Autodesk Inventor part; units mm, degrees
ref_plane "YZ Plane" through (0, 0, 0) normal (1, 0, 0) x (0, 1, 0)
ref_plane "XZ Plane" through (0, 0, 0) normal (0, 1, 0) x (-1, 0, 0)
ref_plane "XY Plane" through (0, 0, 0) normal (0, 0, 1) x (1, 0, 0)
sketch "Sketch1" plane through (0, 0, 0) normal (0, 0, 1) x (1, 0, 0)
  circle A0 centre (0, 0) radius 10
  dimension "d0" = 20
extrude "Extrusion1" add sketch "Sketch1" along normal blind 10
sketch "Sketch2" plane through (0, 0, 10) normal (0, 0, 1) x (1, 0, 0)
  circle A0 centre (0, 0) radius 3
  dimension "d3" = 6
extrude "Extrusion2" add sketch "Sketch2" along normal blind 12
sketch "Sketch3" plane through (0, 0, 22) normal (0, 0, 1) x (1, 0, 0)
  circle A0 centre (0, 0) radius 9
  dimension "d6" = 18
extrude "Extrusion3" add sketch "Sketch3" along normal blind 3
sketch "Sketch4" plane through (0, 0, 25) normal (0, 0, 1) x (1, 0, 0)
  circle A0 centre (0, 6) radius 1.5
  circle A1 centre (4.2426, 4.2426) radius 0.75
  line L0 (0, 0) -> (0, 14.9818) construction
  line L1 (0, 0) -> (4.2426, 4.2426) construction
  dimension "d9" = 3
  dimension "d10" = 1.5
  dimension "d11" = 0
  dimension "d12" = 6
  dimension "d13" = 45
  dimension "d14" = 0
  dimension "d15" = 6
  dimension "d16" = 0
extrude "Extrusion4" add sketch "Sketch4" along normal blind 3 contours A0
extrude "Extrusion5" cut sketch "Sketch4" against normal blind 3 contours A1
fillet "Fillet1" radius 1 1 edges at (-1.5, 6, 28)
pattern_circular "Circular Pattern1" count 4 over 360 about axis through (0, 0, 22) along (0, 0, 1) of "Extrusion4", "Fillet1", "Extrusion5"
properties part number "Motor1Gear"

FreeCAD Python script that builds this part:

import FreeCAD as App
import Part
import Sketcher
from FreeCAD import Vector
Q = App.Units.Quantity


def edges_at(feature, points):
    """Names of the edges that pass closest to the given points."""
    edges = feature.Shape.Edges
    near = lambda p: min(range(len(edges)), key=lambda i: edges[i].distToShape(Part.Vertex(*p))[0])
    return sorted({f"Edge{near(p) + 1}" for p in points})

doc = App.newDocument("Part")
params = doc.addObject("Spreadsheet::Sheet", "Params")
for row, (alias, value) in enumerate([
    ("sketch1_diameter", "20 mm"),
    ("pad1_length", "10 mm"),
    ("sketch2_diameter", "6 mm"),
    ("pad2_length", "12 mm"),
    ("sketch3_diameter", "18 mm"),
    ("pad3_length", "3 mm"),
    ("sketch4_diameter", "3 mm"),
    ("pad4_length", "3 mm"),
    ("sketch5_diameter", "1.5 mm"),
    ("pocket1_length", "3 mm"),
    ("fillet_radius", "1 mm"),
], start=1):
    params.set(f"A{row}", alias)
    params.set(f"B{row}", "=" + value)
    params.setAlias(f"B{row}", alias)

body = doc.addObject("PartDesign::Body", "Body")

# Sketch on XY plane
sketch1 = doc.addObject("Sketcher::SketchObject", "Sketch")
body.addObject(sketch1)
sketch1.AttachmentSupport = (doc.XY_Plane, [""])
sketch1.MapMode = "FlatFace"
sketch1.addGeometry(Part.Circle(Vector(0, 0, 0), Vector(0, 0, 1), 10), False)
sketch1.addConstraint([
    Sketcher.Constraint("Coincident", 0, 3, -1, 1),
    Sketcher.Constraint("Diameter", 0, Q("20 mm")),
])
sketch1.setExpression("Constraints[1]", "Params.sketch1_diameter")
pad1 = doc.addObject("PartDesign::Pad", "Pad")
body.addObject(pad1)
pad1.Profile = sketch1
pad1.setExpression("Length", "Params.pad1_length")

# Sketch on XY plane
sketch2 = doc.addObject("Sketcher::SketchObject", "Sketch001")
body.addObject(sketch2)
sketch2.AttachmentSupport = (doc.XY_Plane, [""])
sketch2.MapMode = "FlatFace"
sketch2.AttachmentOffset = App.Placement(Vector(0, 0, 10), App.Rotation())
sketch2.addGeometry(Part.Circle(Vector(0, 0, 0), Vector(0, 0, 1), 3), False)
sketch2.addConstraint([
    Sketcher.Constraint("Coincident", 0, 3, -1, 1),
    Sketcher.Constraint("Diameter", 0, Q("6 mm")),
])
sketch2.setExpression("Constraints[1]", "Params.sketch2_diameter")
pad2 = doc.addObject("PartDesign::Pad", "Pad001")
body.addObject(pad2)
pad2.Profile = sketch2
pad2.setExpression("Length", "Params.pad2_length")

# Sketch on XY plane
sketch3 = doc.addObject("Sketcher::SketchObject", "Sketch002")
body.addObject(sketch3)
sketch3.AttachmentSupport = (doc.XY_Plane, [""])
sketch3.MapMode = "FlatFace"
sketch3.AttachmentOffset = App.Placement(Vector(0, 0, 22), App.Rotation())
sketch3.addGeometry(Part.Circle(Vector(0, 0, 0), Vector(0, 0, 1), 9), False)
sketch3.addConstraint([
    Sketcher.Constraint("Coincident", 0, 3, -1, 1),
    Sketcher.Constraint("Diameter", 0, Q("18 mm")),
])
sketch3.setExpression("Constraints[1]", "Params.sketch3_diameter")
pad3 = doc.addObject("PartDesign::Pad", "Pad002")
body.addObject(pad3)
pad3.Profile = sketch3
pad3.setExpression("Length", "Params.pad3_length")

# Sketch on XY plane
sketch4 = doc.addObject("Sketcher::SketchObject", "Sketch003")
body.addObject(sketch4)
sketch4.AttachmentSupport = (doc.XY_Plane, [""])
sketch4.MapMode = "FlatFace"
sketch4.AttachmentOffset = App.Placement(Vector(0, 0, 25), App.Rotation())
sketch4.addGeometry(Part.Circle(Vector(0, 6, 0), Vector(0, 0, 1), 1.5), False)
sketch4.addConstraint([
    Sketcher.Constraint("PointOnObject", 0, 3, -2),
    Sketcher.Constraint("Diameter", 0, Q("3 mm")),
    Sketcher.Constraint("DistanceY", -1, 1, 0, 3, Q("6 mm")),
])
sketch4.setExpression("Constraints[1]", "Params.sketch4_diameter")
pad4 = doc.addObject("PartDesign::Pad", "Pad003")
body.addObject(pad4)
pad4.Profile = sketch4
pad4.setExpression("Length", "Params.pad4_length")

# Sketch on XY plane
sketch5 = doc.addObject("Sketcher::SketchObject", "Sketch004")
body.addObject(sketch5)
sketch5.AttachmentSupport = (doc.XY_Plane, [""])
sketch5.MapMode = "FlatFace"
sketch5.AttachmentOffset = App.Placement(Vector(0, 0, 25), App.Rotation())
sketch5.addGeometry(Part.Circle(Vector(4.2, 4.2, 0), Vector(0, 0, 1), 0.8), False)
sketch5.addConstraint([
    Sketcher.Constraint("Diameter", 0, Q("1.5 mm")),
    Sketcher.Constraint("DistanceX", -1, 1, 0, 3, Q("4.2426 mm")),
    Sketcher.Constraint("DistanceY", -1, 1, 0, 3, Q("4.2426 mm")),
])
sketch5.setExpression("Constraints[0]", "Params.sketch5_diameter")
pocket1 = doc.addObject("PartDesign::Pocket", "Pocket")
body.addObject(pocket1)
pocket1.Profile = sketch5
pocket1.setExpression("Length", "Params.pocket1_length")
doc.recompute()

fillet = doc.addObject("PartDesign::Fillet", "Fillet")
body.addObject(fillet)
fillet.Base = (pocket1, edges_at(pocket1, [(-1.5, 6, 28)]))
fillet.setExpression("Radius", "Params.fillet_radius")
doc.recompute()

polarpattern = doc.addObject("PartDesign::PolarPattern", "PolarPattern")
body.addObject(polarpattern)
polarpattern.Originals = [pad4, fillet, pocket1]
polarpattern.Axis = (doc.Z_Axis, [""])
polarpattern.Angle = 360
polarpattern.Occurrences = 4
body.Tip = polarpattern

doc.recompute()
